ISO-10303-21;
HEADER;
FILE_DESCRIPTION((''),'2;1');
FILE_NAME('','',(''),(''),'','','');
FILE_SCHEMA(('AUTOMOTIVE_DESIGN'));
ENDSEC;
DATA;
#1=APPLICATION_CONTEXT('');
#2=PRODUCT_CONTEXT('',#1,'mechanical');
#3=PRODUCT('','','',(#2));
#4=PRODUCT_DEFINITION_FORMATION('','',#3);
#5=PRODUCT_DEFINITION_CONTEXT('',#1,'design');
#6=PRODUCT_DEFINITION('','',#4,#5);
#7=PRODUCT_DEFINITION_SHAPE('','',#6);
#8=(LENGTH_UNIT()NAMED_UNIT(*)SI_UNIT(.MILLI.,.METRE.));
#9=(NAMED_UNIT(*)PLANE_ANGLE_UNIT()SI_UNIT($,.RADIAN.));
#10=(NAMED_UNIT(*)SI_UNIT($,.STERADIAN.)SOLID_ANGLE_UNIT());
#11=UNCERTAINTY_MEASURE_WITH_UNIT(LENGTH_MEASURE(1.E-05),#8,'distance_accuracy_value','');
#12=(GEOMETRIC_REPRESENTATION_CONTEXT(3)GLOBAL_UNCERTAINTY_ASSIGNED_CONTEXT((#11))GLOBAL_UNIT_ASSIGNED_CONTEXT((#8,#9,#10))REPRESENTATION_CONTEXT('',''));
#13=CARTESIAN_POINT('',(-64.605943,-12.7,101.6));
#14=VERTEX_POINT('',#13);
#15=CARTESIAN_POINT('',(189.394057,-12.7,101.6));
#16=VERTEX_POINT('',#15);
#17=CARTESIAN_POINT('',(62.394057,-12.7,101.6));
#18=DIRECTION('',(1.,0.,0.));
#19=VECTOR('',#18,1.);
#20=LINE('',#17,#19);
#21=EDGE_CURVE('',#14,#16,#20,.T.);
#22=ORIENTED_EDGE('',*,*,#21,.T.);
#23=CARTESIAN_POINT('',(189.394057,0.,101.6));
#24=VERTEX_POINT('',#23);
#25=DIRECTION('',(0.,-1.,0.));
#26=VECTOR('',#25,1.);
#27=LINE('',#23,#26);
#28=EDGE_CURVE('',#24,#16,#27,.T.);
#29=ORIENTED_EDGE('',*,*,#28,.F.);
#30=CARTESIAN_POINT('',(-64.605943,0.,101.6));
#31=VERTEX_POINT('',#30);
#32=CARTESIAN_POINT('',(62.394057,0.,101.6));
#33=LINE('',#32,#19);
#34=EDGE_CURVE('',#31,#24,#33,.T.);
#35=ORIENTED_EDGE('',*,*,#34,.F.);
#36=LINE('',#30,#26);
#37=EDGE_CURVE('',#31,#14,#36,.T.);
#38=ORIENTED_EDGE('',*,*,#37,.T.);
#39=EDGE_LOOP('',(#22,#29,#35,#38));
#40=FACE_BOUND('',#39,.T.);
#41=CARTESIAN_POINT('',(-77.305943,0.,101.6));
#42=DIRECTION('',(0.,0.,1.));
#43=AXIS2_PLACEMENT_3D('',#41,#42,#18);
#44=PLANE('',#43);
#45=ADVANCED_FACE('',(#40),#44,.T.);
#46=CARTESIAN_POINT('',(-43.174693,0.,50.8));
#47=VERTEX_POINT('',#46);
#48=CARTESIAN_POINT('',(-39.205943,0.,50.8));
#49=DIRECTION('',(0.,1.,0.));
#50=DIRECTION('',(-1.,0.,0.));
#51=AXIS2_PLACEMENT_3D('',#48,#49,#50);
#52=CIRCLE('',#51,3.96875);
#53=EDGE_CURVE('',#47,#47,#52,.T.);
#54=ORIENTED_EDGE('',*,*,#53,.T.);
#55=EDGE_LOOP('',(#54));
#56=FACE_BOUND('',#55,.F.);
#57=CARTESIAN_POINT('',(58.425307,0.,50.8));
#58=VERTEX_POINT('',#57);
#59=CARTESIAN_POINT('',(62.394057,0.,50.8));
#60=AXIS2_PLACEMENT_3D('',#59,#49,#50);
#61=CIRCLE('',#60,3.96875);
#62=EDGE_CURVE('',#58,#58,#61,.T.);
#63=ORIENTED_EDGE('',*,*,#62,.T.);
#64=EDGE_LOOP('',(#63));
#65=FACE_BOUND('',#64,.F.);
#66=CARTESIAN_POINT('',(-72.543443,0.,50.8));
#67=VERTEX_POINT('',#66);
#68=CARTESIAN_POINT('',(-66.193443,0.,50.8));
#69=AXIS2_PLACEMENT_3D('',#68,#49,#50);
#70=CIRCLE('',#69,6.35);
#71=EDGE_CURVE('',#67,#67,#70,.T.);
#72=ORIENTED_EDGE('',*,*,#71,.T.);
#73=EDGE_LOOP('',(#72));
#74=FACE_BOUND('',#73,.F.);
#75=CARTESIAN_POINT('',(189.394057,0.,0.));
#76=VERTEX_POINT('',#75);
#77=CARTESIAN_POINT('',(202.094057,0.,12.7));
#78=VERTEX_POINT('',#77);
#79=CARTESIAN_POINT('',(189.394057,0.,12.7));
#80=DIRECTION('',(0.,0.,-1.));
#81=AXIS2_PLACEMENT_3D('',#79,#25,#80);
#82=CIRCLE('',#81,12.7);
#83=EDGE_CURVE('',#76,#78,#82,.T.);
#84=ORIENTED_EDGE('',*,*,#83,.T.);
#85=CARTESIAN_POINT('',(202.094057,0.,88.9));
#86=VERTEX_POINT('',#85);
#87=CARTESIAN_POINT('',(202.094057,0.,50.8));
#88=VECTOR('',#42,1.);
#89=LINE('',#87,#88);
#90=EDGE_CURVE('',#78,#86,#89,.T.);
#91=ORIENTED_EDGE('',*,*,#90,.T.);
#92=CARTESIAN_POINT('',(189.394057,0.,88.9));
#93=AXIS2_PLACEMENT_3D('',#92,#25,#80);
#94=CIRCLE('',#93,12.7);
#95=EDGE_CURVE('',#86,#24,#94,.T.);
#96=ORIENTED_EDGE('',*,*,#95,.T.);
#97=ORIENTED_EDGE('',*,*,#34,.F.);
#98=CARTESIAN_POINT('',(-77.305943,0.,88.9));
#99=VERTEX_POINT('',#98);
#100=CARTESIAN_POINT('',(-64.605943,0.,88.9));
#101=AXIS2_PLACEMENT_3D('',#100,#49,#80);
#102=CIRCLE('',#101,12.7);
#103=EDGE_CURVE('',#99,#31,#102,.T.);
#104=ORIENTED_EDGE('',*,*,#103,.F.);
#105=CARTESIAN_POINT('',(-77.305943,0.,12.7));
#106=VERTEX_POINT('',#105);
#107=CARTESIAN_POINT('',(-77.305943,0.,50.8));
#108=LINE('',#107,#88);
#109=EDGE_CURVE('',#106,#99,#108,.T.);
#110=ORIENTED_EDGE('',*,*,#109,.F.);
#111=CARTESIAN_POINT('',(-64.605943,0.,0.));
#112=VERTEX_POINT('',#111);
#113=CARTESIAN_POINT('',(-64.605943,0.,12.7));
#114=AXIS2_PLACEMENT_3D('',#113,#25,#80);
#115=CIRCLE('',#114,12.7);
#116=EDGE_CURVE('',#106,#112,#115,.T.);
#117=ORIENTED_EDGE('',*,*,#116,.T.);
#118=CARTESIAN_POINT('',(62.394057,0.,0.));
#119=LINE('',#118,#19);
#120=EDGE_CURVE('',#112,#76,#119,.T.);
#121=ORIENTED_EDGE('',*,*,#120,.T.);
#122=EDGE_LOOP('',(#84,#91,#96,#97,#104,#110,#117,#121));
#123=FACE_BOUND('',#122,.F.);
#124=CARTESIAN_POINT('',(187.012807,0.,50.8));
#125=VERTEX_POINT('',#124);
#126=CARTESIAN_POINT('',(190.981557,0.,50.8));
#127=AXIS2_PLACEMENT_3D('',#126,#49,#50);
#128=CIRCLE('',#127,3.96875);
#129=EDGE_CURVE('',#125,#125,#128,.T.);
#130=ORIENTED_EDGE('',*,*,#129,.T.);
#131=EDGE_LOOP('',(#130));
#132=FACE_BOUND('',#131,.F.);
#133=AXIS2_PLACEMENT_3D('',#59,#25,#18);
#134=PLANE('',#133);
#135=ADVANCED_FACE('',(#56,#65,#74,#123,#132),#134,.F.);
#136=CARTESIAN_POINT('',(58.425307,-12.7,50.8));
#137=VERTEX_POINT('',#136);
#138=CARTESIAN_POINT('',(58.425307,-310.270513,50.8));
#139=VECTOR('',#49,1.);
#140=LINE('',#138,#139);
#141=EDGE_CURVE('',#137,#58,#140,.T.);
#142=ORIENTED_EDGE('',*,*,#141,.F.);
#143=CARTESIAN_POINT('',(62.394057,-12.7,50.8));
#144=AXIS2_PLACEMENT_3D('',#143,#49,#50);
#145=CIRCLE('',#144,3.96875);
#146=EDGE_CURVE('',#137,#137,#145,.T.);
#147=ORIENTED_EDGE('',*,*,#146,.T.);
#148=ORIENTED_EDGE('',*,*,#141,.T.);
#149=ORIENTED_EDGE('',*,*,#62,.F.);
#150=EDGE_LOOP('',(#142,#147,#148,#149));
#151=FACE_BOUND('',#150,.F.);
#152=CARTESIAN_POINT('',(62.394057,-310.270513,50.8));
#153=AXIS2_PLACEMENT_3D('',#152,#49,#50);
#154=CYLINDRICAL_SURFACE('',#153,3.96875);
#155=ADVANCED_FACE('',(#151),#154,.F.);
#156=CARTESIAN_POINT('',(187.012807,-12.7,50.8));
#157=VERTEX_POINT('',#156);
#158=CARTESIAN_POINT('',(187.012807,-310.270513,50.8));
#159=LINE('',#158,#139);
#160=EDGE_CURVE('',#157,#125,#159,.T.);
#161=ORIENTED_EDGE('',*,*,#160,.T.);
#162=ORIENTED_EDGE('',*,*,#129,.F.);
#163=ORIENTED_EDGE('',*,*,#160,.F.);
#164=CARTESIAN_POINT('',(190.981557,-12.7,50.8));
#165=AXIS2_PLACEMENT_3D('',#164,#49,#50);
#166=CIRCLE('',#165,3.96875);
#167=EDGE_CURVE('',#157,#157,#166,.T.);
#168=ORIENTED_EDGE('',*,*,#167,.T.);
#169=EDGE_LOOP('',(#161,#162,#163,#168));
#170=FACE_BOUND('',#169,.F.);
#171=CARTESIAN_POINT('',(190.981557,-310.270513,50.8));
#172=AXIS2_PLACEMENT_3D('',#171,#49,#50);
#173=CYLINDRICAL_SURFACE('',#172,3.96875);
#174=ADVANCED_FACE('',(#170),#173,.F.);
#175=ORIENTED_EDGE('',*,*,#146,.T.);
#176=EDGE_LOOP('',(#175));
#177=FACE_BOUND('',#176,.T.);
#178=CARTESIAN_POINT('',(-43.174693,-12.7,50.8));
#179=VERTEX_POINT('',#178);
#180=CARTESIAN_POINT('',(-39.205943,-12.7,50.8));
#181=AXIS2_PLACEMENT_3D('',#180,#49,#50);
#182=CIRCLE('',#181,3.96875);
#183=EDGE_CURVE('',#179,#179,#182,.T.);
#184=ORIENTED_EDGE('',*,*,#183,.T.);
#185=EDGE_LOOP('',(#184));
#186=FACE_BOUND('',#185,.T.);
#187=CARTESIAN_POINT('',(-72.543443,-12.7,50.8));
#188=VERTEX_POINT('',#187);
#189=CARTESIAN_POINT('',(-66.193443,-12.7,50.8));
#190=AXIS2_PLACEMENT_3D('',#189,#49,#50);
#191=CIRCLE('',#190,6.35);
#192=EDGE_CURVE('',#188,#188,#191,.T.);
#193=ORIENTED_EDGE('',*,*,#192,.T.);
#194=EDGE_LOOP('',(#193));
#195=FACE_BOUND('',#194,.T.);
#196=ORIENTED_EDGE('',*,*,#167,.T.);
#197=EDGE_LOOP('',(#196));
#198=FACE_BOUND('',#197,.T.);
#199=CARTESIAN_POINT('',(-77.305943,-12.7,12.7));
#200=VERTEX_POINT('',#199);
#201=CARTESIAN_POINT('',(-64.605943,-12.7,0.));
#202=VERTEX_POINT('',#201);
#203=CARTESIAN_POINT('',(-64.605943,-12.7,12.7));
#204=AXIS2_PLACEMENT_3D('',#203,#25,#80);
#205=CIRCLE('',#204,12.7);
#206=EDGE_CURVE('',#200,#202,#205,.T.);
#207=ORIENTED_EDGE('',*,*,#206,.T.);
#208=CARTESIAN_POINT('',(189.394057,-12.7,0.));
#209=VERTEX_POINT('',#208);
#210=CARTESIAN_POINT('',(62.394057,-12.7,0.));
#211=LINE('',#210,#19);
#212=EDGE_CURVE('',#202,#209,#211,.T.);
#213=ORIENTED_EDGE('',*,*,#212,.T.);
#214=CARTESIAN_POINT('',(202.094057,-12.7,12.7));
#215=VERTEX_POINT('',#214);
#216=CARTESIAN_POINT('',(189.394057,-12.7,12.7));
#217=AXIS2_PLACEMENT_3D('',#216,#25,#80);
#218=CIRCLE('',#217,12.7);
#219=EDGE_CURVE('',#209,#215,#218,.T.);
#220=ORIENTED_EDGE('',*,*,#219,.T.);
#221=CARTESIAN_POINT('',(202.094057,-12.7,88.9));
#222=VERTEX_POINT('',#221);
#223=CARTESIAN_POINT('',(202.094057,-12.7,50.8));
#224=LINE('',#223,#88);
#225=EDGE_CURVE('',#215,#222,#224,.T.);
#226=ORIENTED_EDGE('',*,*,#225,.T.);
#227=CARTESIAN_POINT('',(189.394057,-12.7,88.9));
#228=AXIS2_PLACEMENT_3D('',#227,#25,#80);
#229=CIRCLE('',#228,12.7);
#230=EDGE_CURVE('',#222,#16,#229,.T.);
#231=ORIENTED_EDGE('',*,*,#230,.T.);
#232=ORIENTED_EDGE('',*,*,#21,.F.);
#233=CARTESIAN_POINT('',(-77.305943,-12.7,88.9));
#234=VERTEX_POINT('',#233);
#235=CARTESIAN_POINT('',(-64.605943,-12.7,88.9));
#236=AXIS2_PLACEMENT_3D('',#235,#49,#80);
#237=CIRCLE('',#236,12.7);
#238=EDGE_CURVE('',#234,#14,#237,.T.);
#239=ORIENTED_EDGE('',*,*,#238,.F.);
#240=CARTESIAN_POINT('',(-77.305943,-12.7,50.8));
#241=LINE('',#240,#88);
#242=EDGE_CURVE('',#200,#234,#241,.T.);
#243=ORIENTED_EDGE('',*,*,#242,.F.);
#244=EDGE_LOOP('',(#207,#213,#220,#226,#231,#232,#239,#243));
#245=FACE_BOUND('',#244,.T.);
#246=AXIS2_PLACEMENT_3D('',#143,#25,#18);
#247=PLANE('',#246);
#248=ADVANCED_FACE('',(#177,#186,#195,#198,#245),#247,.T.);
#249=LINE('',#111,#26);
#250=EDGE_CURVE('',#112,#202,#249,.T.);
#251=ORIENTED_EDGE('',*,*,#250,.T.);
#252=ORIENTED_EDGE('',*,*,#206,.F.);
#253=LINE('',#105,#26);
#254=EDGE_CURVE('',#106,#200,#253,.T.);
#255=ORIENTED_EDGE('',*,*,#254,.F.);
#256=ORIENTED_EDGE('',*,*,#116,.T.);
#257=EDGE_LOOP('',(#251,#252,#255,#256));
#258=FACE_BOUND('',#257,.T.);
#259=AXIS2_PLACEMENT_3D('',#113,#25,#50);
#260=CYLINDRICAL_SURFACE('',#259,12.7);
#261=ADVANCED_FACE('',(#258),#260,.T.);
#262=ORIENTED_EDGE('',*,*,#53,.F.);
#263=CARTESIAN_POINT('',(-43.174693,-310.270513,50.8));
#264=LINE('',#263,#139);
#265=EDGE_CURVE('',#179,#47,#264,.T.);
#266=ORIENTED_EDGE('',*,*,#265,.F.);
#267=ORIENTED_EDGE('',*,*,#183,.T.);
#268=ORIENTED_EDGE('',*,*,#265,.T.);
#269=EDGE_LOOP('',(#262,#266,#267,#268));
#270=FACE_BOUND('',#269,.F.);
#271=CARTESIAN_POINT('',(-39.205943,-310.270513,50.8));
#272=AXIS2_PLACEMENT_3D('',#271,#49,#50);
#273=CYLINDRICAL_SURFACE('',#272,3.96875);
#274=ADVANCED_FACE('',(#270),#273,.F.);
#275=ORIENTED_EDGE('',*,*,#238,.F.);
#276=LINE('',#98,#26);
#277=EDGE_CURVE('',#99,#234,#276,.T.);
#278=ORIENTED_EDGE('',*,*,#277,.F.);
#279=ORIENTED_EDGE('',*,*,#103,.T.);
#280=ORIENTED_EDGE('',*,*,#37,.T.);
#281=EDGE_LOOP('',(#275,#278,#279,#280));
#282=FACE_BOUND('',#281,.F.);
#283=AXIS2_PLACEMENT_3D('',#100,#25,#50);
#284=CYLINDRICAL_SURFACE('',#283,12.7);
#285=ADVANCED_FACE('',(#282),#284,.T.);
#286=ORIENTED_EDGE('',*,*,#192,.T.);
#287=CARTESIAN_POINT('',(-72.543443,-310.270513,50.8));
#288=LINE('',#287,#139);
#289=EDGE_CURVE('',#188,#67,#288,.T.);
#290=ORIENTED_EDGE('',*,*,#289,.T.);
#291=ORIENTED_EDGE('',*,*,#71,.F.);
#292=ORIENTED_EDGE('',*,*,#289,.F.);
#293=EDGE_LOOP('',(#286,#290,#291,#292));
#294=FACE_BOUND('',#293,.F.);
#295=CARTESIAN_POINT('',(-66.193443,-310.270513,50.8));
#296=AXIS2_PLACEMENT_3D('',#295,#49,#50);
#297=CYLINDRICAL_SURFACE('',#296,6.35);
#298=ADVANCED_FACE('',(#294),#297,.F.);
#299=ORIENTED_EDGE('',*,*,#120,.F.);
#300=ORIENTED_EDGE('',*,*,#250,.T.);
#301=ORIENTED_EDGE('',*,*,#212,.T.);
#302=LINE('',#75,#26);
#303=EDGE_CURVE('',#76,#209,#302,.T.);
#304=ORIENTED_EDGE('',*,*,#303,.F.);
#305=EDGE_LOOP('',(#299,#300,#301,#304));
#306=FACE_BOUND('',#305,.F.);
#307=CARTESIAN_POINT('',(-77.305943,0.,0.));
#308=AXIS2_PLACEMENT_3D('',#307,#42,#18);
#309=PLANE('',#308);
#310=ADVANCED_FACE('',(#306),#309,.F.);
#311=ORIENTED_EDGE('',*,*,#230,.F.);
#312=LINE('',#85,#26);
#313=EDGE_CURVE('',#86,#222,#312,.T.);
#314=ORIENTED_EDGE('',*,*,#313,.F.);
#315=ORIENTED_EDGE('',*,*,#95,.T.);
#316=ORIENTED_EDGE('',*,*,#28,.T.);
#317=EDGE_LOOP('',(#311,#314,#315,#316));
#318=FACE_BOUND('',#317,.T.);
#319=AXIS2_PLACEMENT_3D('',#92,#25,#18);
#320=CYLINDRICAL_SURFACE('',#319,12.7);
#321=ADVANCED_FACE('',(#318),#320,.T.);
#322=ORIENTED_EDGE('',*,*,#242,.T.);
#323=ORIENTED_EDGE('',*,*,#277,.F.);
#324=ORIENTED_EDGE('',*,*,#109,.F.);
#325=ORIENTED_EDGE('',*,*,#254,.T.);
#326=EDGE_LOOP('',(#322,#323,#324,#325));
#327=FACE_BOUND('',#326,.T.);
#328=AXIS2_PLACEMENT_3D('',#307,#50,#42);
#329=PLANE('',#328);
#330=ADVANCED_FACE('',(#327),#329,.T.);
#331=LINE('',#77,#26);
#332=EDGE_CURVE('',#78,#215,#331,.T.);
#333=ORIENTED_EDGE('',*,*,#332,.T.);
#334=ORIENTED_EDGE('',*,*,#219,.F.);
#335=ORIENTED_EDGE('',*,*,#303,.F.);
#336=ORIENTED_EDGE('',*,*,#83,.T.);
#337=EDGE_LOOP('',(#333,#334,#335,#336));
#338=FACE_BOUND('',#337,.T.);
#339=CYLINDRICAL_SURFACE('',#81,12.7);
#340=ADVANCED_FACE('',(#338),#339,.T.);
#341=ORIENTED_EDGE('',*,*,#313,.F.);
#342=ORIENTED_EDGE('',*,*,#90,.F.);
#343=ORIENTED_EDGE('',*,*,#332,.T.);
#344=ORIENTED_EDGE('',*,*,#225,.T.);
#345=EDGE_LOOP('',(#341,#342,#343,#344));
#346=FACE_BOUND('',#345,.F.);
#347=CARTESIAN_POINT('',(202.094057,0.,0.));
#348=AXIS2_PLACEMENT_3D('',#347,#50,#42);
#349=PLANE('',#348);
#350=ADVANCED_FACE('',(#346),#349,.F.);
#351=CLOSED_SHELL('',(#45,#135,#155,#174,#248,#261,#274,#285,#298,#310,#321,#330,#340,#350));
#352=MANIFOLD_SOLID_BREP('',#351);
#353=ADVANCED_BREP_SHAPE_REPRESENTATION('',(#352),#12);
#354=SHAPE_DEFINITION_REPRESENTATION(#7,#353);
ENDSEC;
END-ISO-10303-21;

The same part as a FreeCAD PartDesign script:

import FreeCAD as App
import Part
import Sketcher
Q = App.Units.Quantity


def edges_at(feature, points):
    """Names of the edges that pass closest to the given points."""
    edges = feature.Shape.Edges
    near = lambda p: min(range(len(edges)), key=lambda i: edges[i].distToShape(Part.Vertex(*p))[0])
    return sorted({f"Edge{near(p) + 1}" for p in points})


def add_polygon(sketch, points):
    """Adds a closed chain of lines whose ends are joined by coincident constraints."""
    first, n = sketch.GeometryCount, len(points)
    for a, b in zip(points, points[1:] + points[:1]):
        sketch.addGeometry(Part.LineSegment(App.Vector(*a, 0), App.Vector(*b, 0)), False)
    for i in range(n):
        sketch.addConstraint(Sketcher.Constraint("Coincident", first + i, 2, first + (i + 1) % n, 1))

doc = App.newDocument("Part")
body = doc.addObject("PartDesign::Body", "Body")

sketch1 = body.newObject("Sketcher::SketchObject", "Sketch")
sketch1.AttachmentSupport = (doc.getObject("XZ_Plane"), [""])
sketch1.MapMode = "FlatFace"
add_polygon(sketch1, [(-77, 102), (-77, 0), (202, 0), (202, 102)])
sketch1.addConstraint(Sketcher.Constraint("Vertical", 0))
sketch1.addConstraint(Sketcher.Constraint("Horizontal", 1))
sketch1.addConstraint(Sketcher.Constraint("Vertical", 2))
sketch1.addConstraint(Sketcher.Constraint("Horizontal", 3))
sketch1.addConstraint(Sketcher.Constraint("PointOnObject", 0, 2, -1))
sketch1.addConstraint(Sketcher.Constraint("DistanceX", 1, 1, 1, 2, Q("11 in")))
sketch1.addConstraint(Sketcher.Constraint("DistanceY", 0, 2, 0, 1, Q("4 in")))
sketch1.addConstraint(Sketcher.Constraint("DistanceX", 0, 2, -1, 1, Q("77.305943 mm")))
pad1 = body.newObject("PartDesign::Pad", "Pad")
pad1.Profile = sketch1
pad1.Length = Q("0.5 in")
doc.recompute()

fillet = body.newObject("PartDesign::Fillet", "Fillet")
fillet.Base = (pad1, edges_at(pad1, [
    (-77.306, -6.35, 101.6),
    (-77.306, -6.35, 0),
    (202.094, -6.35, 101.6),
    (202.094, -6.35, 0),
]))
fillet.Radius = Q("0.5 in")

sketch2 = body.newObject("Sketcher::SketchObject", "Sketch001")
sketch2.AttachmentSupport = (doc.getObject("XZ_Plane"), [""])
sketch2.MapMode = "FlatFace"
sketch2.AttachmentOffset = App.Placement(App.Vector(0, 0, 0.5 * 25.4), App.Rotation())
sketch2.addGeometry(Part.Circle(App.Vector(62.4, 50.8, 0), App.Vector(0, 0, 1), 4), False)
sketch2.addConstraint(Sketcher.Constraint("Diameter", 0, Q("0.3125 in")))
sketch2.addConstraint(Sketcher.Constraint("DistanceY", -1, 1, 0, 3, Q("2 in")))
sketch2.addConstraint(Sketcher.Constraint("DistanceX", -1, 1, 0, 3, Q("62.394057 mm")))
doc.recompute()
hole = body.newObject("PartDesign::Hole", "Hole")
hole.Profile = sketch2
hole.ThreadType = "None"
hole.Diameter = Q("0.3125 in")
hole.DepthType = "ThroughAll"

sketch3 = body.newObject("Sketcher::SketchObject", "Sketch002")
sketch3.AttachmentSupport = (doc.getObject("XZ_Plane"), [""])
sketch3.MapMode = "FlatFace"
sketch3.AttachmentOffset = App.Placement(App.Vector(0, 0, 0.5 * 25.4), App.Rotation())
sketch3.addGeometry(Part.Circle(App.Vector(191, 50.8, 0), App.Vector(0, 0, 1), 4), False)
sketch3.addGeometry(Part.Circle(App.Vector(-39.2, 50.8, 0), App.Vector(0, 0, 1), 4), False)
sketch3.addConstraint(Sketcher.Constraint("Equal", 0, 1))
sketch3.addConstraint(Sketcher.Constraint("Horizontal", 0, 3, 1, 3))
sketch3.addConstraint(Sketcher.Constraint("Diameter", 0, Q("0.3125 in")))
sketch3.addConstraint(Sketcher.Constraint("DistanceY", -1, 1, 0, 3, Q("2 in")))
sketch3.addConstraint(Sketcher.Constraint("DistanceX", 1, 3, 0, 3, Q("9.0625 in")))
sketch3.addConstraint(Sketcher.Constraint("DistanceX", -1, 1, 0, 3, Q("190.981557 mm")))
doc.recompute()
hole2 = body.newObject("PartDesign::Hole", "Hole001")
hole2.Profile = sketch3
hole2.ThreadType = "None"
hole2.Diameter = Q("0.3125 in")
hole2.DepthType = "ThroughAll"

sketch4 = body.newObject("Sketcher::SketchObject", "Sketch003")
sketch4.AttachmentSupport = (doc.getObject("XZ_Plane"), [""])
sketch4.MapMode = "FlatFace"
sketch4.AttachmentOffset = App.Placement(App.Vector(0, 0, 0.5 * 25.4), App.Rotation())
sketch4.addGeometry(Part.Circle(App.Vector(-66, 51, 0), App.Vector(0, 0, 1), 6), False)
sketch4.addConstraint(Sketcher.Constraint("Diameter", 0, Q("0.5 in")))
sketch4.addConstraint(Sketcher.Constraint("DistanceY", -1, 1, 0, 3, Q("2 in")))
sketch4.addConstraint(Sketcher.Constraint("DistanceX", 0, 3, -1, 1, Q("66.193443 mm")))
doc.recompute()
hole3 = body.newObject("PartDesign::Hole", "Hole002")
hole3.Profile = sketch4
hole3.ThreadType = "None"
hole3.Diameter = Q("0.5 in")
hole3.DepthType = "ThroughAll"

doc.recompute()
